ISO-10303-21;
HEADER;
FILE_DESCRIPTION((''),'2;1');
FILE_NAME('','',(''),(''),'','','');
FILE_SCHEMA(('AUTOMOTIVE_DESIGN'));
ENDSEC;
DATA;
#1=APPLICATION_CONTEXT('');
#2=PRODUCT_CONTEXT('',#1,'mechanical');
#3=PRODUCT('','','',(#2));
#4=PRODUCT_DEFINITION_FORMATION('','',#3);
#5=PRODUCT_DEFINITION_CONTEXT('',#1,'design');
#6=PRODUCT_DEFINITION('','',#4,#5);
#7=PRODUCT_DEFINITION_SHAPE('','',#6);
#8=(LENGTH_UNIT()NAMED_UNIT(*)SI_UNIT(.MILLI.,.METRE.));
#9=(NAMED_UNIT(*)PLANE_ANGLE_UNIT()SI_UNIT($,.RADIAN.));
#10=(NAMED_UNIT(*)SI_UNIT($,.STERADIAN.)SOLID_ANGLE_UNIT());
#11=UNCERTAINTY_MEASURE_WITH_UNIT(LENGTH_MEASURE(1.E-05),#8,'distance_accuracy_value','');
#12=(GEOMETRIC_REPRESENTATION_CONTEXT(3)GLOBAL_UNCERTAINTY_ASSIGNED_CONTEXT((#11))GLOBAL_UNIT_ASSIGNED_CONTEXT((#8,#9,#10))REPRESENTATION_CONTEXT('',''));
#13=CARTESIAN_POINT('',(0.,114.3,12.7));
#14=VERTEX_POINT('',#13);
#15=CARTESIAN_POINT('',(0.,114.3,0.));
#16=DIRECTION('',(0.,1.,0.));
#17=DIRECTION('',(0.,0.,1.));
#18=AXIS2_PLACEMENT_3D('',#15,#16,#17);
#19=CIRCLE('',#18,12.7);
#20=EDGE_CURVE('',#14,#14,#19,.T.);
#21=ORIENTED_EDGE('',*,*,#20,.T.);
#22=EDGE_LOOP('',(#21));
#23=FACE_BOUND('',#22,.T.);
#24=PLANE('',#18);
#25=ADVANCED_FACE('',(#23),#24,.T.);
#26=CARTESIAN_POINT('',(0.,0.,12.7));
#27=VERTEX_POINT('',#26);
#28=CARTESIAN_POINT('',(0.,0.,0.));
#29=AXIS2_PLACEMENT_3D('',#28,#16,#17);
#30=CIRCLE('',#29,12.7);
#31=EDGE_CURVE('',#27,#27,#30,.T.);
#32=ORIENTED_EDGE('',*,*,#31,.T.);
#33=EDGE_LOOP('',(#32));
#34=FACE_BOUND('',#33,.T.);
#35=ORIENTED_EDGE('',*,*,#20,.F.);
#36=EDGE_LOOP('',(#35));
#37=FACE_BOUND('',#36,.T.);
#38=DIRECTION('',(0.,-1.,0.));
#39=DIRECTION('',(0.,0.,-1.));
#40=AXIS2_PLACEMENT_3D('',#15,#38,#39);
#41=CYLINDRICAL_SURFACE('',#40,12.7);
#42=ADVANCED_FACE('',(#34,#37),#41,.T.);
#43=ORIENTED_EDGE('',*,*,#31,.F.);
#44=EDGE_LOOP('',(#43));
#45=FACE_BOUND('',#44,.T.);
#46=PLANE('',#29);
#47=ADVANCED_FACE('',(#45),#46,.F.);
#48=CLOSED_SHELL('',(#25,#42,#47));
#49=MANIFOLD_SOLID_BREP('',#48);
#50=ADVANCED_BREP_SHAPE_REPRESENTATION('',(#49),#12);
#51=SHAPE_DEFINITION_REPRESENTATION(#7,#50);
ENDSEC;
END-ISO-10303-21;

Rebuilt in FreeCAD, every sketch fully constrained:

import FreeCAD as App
import Part
import Sketcher

V = App.Vector
Q = App.Units.Quantity

doc = App.newDocument("Part")
body = doc.addObject("PartDesign::Body", "Body")

# Sketch on XZ plane
sketch1 = body.newObject("Sketcher::SketchObject", "Sketch")
sketch1.AttachmentSupport = (doc.getObject("XZ_Plane"), [""])
sketch1.MapMode = "FlatFace"
sketch1.addGeometry(Part.Circle(V(0, 0, 0), V(0, 0, 1), 13), False)
sketch1.addConstraint([
    Sketcher.Constraint("Coincident", 0, 3, -1, 1),
    Sketcher.Constraint("Diameter", 0, Q("1 in")),
])
pad1 = body.newObject("PartDesign::Pad", "Pad")
pad1.Profile = sketch1
pad1.Length = Q("4.5 in")
pad1.Reversed = True

doc.recompute()
